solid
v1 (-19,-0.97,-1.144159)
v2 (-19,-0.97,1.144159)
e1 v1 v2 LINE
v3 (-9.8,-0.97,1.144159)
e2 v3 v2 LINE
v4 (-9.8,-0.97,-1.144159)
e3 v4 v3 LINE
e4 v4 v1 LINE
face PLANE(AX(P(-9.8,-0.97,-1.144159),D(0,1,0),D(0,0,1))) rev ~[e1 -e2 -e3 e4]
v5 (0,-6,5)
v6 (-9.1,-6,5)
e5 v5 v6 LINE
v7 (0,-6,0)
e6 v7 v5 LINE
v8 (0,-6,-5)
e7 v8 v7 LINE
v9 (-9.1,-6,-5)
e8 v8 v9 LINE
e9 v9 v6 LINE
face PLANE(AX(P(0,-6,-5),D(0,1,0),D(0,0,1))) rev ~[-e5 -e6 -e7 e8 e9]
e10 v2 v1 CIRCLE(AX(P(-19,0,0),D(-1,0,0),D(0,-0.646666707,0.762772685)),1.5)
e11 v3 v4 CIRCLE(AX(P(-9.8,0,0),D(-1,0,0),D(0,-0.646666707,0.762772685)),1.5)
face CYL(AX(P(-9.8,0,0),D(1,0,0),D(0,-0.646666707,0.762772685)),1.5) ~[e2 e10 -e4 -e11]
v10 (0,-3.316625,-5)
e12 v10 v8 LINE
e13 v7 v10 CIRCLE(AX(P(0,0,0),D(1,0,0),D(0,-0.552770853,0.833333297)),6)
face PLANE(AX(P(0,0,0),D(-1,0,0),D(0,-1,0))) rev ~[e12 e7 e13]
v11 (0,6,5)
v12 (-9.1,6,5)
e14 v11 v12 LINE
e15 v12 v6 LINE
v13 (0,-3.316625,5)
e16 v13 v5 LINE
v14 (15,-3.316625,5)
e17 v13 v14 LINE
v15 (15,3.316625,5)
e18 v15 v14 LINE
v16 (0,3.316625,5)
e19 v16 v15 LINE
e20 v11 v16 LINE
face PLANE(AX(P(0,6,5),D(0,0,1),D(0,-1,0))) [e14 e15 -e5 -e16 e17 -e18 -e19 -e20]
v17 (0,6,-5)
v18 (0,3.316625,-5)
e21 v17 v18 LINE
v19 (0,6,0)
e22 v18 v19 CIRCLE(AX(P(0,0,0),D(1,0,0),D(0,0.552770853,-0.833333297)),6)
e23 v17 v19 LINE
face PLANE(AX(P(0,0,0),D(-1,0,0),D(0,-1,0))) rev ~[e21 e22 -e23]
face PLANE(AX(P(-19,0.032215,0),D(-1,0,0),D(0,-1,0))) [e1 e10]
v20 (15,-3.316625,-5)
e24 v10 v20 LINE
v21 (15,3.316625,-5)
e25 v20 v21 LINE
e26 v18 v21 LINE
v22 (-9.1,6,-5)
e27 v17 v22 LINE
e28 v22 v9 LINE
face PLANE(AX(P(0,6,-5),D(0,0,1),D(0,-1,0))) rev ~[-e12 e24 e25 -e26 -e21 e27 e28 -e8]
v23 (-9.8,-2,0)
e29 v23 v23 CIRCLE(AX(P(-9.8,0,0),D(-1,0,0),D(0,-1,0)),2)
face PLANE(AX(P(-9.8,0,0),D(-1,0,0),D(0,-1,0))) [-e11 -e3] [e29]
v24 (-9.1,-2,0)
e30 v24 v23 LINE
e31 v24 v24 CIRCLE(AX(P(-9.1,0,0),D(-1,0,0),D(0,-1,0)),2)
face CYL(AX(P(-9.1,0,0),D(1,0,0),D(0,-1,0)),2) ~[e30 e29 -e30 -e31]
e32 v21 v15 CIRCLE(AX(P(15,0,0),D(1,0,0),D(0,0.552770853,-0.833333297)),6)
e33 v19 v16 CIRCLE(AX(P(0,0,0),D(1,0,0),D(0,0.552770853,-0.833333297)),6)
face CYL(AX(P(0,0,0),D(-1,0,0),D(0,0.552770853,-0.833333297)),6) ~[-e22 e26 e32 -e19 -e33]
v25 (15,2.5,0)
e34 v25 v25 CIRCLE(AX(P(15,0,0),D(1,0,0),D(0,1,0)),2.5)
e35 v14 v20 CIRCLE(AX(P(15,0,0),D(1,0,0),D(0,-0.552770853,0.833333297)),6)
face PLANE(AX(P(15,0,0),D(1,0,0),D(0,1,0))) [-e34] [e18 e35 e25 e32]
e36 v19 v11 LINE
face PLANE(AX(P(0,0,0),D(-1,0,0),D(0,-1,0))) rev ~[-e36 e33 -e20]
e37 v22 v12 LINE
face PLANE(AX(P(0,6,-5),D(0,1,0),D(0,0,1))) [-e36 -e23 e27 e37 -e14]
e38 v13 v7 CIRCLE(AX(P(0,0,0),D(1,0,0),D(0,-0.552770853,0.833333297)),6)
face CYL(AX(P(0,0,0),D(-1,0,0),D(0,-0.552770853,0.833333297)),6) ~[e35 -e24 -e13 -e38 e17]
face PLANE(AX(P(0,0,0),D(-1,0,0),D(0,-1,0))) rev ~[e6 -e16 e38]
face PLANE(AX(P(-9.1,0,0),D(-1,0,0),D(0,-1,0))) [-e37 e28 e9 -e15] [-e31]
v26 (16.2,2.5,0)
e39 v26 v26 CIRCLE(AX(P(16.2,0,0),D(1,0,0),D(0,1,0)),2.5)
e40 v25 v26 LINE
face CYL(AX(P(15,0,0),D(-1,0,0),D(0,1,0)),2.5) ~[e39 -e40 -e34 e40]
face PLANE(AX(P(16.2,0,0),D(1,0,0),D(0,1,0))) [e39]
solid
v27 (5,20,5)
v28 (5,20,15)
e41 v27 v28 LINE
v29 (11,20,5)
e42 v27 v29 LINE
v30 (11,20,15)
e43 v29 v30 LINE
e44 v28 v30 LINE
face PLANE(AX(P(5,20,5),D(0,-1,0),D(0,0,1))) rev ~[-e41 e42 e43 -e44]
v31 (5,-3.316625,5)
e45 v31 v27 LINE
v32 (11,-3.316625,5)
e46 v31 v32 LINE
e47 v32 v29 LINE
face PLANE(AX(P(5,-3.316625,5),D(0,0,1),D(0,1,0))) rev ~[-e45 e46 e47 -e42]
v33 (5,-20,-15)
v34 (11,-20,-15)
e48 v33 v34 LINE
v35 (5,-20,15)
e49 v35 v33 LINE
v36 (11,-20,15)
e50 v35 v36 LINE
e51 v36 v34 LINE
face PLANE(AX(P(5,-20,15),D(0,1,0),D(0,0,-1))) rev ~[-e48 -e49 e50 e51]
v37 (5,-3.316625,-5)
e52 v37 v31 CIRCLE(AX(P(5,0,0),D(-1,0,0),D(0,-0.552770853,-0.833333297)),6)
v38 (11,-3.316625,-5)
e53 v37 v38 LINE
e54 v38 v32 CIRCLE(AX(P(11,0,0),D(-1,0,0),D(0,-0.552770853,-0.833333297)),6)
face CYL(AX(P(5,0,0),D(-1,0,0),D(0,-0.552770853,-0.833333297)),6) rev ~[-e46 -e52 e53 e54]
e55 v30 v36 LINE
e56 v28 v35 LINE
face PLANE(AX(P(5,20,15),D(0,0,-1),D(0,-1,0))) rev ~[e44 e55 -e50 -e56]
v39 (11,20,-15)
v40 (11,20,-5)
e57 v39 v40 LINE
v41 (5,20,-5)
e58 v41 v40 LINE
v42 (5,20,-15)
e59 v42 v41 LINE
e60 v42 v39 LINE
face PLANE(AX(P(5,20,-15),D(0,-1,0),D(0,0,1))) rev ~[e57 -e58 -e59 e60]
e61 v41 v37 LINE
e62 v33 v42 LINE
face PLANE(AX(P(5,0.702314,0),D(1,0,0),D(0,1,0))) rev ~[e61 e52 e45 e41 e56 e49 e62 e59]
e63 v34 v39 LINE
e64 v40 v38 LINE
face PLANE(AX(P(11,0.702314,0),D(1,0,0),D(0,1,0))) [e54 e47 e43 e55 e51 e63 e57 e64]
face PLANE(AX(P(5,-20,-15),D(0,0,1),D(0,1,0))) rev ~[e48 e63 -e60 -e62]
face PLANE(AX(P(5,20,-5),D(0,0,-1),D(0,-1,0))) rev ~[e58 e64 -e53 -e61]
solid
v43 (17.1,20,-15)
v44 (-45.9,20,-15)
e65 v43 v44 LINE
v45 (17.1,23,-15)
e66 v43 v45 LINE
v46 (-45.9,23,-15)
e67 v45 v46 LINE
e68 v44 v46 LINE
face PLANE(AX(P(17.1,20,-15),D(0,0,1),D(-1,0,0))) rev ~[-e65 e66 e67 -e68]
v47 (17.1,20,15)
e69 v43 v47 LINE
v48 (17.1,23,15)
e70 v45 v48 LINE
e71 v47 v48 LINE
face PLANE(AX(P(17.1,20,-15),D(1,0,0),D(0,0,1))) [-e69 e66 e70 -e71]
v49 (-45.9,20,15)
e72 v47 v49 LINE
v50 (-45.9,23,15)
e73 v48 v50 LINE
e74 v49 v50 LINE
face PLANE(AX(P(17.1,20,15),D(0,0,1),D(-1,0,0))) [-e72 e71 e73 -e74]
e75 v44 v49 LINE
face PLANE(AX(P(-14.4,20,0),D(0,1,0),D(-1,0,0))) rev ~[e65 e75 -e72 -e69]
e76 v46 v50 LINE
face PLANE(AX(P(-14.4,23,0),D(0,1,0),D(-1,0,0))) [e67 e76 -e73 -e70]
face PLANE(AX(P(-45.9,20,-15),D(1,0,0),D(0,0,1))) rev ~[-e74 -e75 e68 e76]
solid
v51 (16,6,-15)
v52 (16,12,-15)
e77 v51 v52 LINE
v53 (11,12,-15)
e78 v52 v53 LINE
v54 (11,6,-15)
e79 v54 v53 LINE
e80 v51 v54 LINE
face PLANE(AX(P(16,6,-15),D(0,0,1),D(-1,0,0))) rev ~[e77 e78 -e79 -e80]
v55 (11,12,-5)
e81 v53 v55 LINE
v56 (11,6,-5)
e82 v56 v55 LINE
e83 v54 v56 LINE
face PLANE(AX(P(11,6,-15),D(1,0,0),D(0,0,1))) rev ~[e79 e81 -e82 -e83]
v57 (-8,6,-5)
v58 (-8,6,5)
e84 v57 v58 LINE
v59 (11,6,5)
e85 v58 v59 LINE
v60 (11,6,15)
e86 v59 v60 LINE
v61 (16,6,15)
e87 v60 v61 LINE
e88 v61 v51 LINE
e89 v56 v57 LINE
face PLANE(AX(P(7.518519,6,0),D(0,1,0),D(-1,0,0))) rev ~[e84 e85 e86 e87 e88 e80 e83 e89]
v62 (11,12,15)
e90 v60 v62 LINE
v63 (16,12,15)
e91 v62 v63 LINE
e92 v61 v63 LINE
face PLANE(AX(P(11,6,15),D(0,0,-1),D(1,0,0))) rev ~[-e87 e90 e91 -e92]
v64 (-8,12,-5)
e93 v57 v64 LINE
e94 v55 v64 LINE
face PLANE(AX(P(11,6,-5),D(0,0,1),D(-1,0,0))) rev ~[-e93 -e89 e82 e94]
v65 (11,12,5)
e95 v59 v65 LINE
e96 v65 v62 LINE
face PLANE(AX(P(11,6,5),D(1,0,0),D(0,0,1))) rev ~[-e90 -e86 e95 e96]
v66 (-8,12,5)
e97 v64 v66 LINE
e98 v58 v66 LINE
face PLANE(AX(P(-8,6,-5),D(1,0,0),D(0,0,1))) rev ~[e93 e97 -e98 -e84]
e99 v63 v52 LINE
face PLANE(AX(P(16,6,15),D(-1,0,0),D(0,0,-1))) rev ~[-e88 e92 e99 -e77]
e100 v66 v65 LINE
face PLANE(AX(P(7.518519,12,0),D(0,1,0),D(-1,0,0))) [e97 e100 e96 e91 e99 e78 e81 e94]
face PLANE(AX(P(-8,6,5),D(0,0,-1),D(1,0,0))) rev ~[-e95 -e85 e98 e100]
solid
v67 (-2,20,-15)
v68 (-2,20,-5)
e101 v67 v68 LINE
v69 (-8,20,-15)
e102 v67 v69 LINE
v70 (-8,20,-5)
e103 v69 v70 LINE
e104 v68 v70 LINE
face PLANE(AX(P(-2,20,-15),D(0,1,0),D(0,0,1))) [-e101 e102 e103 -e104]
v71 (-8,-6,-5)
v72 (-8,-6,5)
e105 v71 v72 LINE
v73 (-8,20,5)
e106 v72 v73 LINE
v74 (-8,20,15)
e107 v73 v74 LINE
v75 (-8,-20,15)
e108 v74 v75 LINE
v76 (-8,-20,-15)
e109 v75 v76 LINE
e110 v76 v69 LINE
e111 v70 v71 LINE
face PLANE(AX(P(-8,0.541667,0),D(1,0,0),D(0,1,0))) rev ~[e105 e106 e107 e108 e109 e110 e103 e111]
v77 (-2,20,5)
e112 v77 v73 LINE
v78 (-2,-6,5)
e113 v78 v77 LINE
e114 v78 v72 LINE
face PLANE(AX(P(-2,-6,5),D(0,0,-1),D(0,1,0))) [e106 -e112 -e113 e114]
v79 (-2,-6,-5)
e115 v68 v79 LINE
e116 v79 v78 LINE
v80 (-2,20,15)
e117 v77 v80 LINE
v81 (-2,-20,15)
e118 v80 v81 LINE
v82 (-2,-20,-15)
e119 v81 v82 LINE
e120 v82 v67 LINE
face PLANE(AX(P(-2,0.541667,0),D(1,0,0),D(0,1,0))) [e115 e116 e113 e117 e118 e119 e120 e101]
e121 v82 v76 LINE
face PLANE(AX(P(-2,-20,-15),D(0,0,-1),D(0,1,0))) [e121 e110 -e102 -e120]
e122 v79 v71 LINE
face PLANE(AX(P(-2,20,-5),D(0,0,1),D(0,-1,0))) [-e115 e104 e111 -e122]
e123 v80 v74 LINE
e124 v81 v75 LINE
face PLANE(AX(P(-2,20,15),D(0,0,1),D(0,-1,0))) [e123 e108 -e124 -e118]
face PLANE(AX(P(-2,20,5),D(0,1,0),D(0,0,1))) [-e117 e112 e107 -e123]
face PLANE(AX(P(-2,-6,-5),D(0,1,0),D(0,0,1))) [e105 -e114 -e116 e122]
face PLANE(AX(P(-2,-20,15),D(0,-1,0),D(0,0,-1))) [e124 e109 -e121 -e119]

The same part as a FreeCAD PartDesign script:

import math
import FreeCAD as App
import Part
import Sketcher

V = App.Vector
Q = App.Units.Quantity


def add_polygon(sketch, points):
    """Adds a closed chain of lines whose ends are joined by coincident constraints."""
    first, n = sketch.GeometryCount, len(points)
    for a, b in zip(points, points[1:] + points[:1]):
        sketch.addGeometry(Part.LineSegment(App.Vector(*a, 0), App.Vector(*b, 0)), False)
    for i in range(n):
        sketch.addConstraint(Sketcher.Constraint("Coincident", first + i, 2, first + (i + 1) % n, 1))

doc = App.newDocument("Part")
params = doc.addObject("Spreadsheet::Sheet", "Params")
for row, (alias, value) in enumerate([
    ("sketch1_radius", "6 mm"),
    ("pad1_length", "15 mm"),
    ("sketch2_diameter", "5 mm"),
    ("pad2_length", "1.2 mm"),
    ("sketch3_width", "12 mm"),
    ("sketch3_height", "10 mm"),
    ("pad3_length", "9.1 mm"),
    ("sketch4_diameter", "4 mm"),
    ("pad4_length", "0.7 mm"),
    ("sketch5_radius", "1.5 mm"),
    ("pad5_length", "9.2 mm"),
    ("sketch6_radius", "6 mm"),
    ("sketch6_width", "40 mm"),
    ("sketch6_height", "10 mm"),
    ("sketch6_height2", "30 mm"),
    ("pad6_length", "6 mm"),
    ("sketch7_width", "63 mm"),
    ("sketch7_height", "30 mm"),
    ("pad7_length", "3 mm"),
    ("sketch8_width", "26 mm"),
    ("sketch8_width2", "40 mm"),
    ("sketch8_height", "10 mm"),
    ("pad8_length", "6 mm"),
    ("sketch9_width", "19 mm"),
    ("sketch9_width2", "5 mm"),
    ("sketch9_height", "10 mm"),
    ("pad9_length", "6 mm"),
], start=1):
    params.set(f"A{row}", alias)
    params.set(f"B{row}", "=" + value)
    params.setAlias(f"B{row}", alias)

body = doc.addObject("PartDesign::Body", "Body")

# Sketch on YZ plane
sketch1 = body.newObject("Sketcher::SketchObject", "Sketch")
sketch1.AttachmentSupport = (doc.getObject("YZ_Plane"), [""])
sketch1.MapMode = "FlatFace"
sketch1.addGeometry(Part.LineSegment(V(-3, -5, 0), V(3, -5, 0)), False)
sketch1.addGeometry(Part.ArcOfCircle(Part.Circle(V(0, 0, 0), V(0, 0, 1), 6), math.radians(-56), math.radians(56)), False)
sketch1.addGeometry(Part.LineSegment(V(3, 5, 0), V(-3, 5, 0)), False)
sketch1.addGeometry(Part.ArcOfCircle(Part.Circle(V(0, 0, 0), V(0, 0, 1), 6), math.radians(124), math.radians(236)), False)
sketch1.addConstraint(Sketcher.Constraint("Coincident", 0, 2, 1, 1))
sketch1.addConstraint(Sketcher.Constraint("Coincident", 1, 2, 2, 1))
sketch1.addConstraint(Sketcher.Constraint("Coincident", 2, 2, 3, 1))
sketch1.addConstraint(Sketcher.Constraint("Coincident", 3, 2, 0, 1))
sketch1.addConstraint(Sketcher.Constraint("Horizontal", 0))
sketch1.addConstraint(Sketcher.Constraint("Horizontal", 2))
sketch1.addConstraint(Sketcher.Constraint("Coincident", 1, 3, -1, 1))
sketch1.addConstraint(Sketcher.Constraint("Coincident", 3, 3, -1, 1))
sketch1.addConstraint(Sketcher.Constraint("Equal", 1, 3))
sketch1.addConstraint(Sketcher.Constraint("Vertical", 0, 2, 1, 2))
sketch1.addConstraint(Sketcher.Constraint("Radius", 1, Q("6 mm")))
sketch1.addConstraint(Sketcher.Constraint("DistanceY", 0, 2, -1, 1, Q("5 mm")))
sketch1.setExpression("Constraints[10]", "Params.sketch1_radius")
pad1 = body.newObject("PartDesign::Pad", "Pad")
pad1.Profile = sketch1
pad1.setExpression("Length", "Params.pad1_length")

# Sketch on YZ plane
sketch2 = body.newObject("Sketcher::SketchObject", "Sketch001")
sketch2.AttachmentSupport = (doc.getObject("YZ_Plane"), [""])
sketch2.MapMode = "FlatFace"
sketch2.AttachmentOffset = App.Placement(V(0, 0, 15), App.Rotation())
sketch2.addGeometry(Part.Circle(V(0, 0, 0), V(0, 0, 1), 2.5), False)
sketch2.addConstraint(Sketcher.Constraint("Coincident", 0, 3, -1, 1))
sketch2.addConstraint(Sketcher.Constraint("Diameter", 0, Q("5 mm")))
sketch2.setExpression("Constraints[1]", "Params.sketch2_diameter")
pad2 = body.newObject("PartDesign::Pad", "Pad001")
pad2.Profile = sketch2
pad2.setExpression("Length", "Params.pad2_length")

# Sketch on YZ plane
sketch3 = body.newObject("Sketcher::SketchObject", "Sketch002")
sketch3.AttachmentSupport = (doc.getObject("YZ_Plane"), [""])
sketch3.MapMode = "FlatFace"
add_polygon(sketch3, [(6, 5), (6, -5), (-6, -5), (-6, 5)])  # lines 0-3
sketch3.addConstraint(Sketcher.Constraint("Vertical", 0))
sketch3.addConstraint(Sketcher.Constraint("Horizontal", 1))
sketch3.addConstraint(Sketcher.Constraint("Vertical", 2))
sketch3.addConstraint(Sketcher.Constraint("Horizontal", 3))
sketch3.addConstraint(Sketcher.Constraint("Symmetric", 0, 2, 2, 2, -1, 1))
sketch3.addConstraint(Sketcher.Constraint("DistanceX", 1, 2, 1, 1, Q("12 mm")))
sketch3.addConstraint(Sketcher.Constraint("DistanceY", 0, 2, 0, 1, Q("10 mm")))
sketch3.setExpression("Constraints[9]", "Params.sketch3_width")
sketch3.setExpression("Constraints[10]", "Params.sketch3_height")
pad3 = body.newObject("PartDesign::Pad", "Pad002")
pad3.Profile = sketch3
pad3.setExpression("Length", "Params.pad3_length")
pad3.Reversed = True

# Sketch on YZ plane
sketch4 = body.newObject("Sketcher::SketchObject", "Sketch003")
sketch4.AttachmentSupport = (doc.getObject("YZ_Plane"), [""])
sketch4.MapMode = "FlatFace"
sketch4.AttachmentOffset = App.Placement(V(0, 0, -9.1), App.Rotation())
sketch4.addGeometry(Part.Circle(V(0, 0, 0), V(0, 0, 1), 2), False)
sketch4.addConstraint(Sketcher.Constraint("Coincident", 0, 3, -1, 1))
sketch4.addConstraint(Sketcher.Constraint("Diameter", 0, Q("4 mm")))
sketch4.setExpression("Constraints[1]", "Params.sketch4_diameter")
pad4 = body.newObject("PartDesign::Pad", "Pad003")
pad4.Profile = sketch4
pad4.setExpression("Length", "Params.pad4_length")
pad4.Reversed = True

# Sketch on YZ plane
sketch5 = body.newObject("Sketcher::SketchObject", "Sketch004")
sketch5.AttachmentSupport = (doc.getObject("YZ_Plane"), [""])
sketch5.MapMode = "FlatFace"
sketch5.AttachmentOffset = App.Placement(V(0, 0, -9.8), App.Rotation())
sketch5.addGeometry(Part.LineSegment(V(-1, -1.1, 0), V(-1, 1.1, 0)), False)
sketch5.addGeometry(Part.ArcOfCircle(Part.Circle(V(0, 0, 0), V(0, 0, 1), 1.5), math.radians(-130), math.radians(130)), False)
sketch5.addConstraint(Sketcher.Constraint("Coincident", 0, 1, 1, 1))
sketch5.addConstraint(Sketcher.Constraint("Coincident", 1, 2, 0, 2))
sketch5.addConstraint(Sketcher.Constraint("Vertical", 0))
sketch5.addConstraint(Sketcher.Constraint("Coincident", 1, 3, -1, 1))
sketch5.addConstraint(Sketcher.Constraint("Radius", 1, Q("1.5 mm")))
sketch5.addConstraint(Sketcher.Constraint("DistanceX", 0, 1, -1, 1, Q("0.97 mm")))
sketch5.setExpression("Constraints[4]", "Params.sketch5_radius")
pad5 = body.newObject("PartDesign::Pad", "Pad004")
pad5.Profile = sketch5
pad5.setExpression("Length", "Params.pad5_length")
pad5.Reversed = True
body2 = doc.addObject("PartDesign::Body", "Body001")

# Sketch on YZ plane
sketch6 = body2.newObject("Sketcher::SketchObject", "Sketch005")
sketch6.AttachmentSupport = (doc.getObject("YZ_Plane001"), [""])
sketch6.MapMode = "FlatFace"
sketch6.AttachmentOffset = App.Placement(V(0, 0, 5), App.Rotation())
sketch6.addGeometry(Part.LineSegment(V(-3, 5, 0), V(20, 5, 0)), False)
sketch6.addGeometry(Part.LineSegment(V(20, 5, 0), V(20, 15, 0)), False)
sketch6.addGeometry(Part.LineSegment(V(20, 15, 0), V(-20, 15, 0)), False)
sketch6.addGeometry(Part.LineSegment(V(-20, 15, 0), V(-20, -15, 0)), False)
sketch6.addGeometry(Part.LineSegment(V(-20, -15, 0), V(20, -15, 0)), False)
sketch6.addGeometry(Part.LineSegment(V(20, -15, 0), V(20, -5, 0)), False)
sketch6.addGeometry(Part.LineSegment(V(20, -5, 0), V(-3, -5, 0)), False)
sketch6.addGeometry(Part.ArcOfCircle(Part.Circle(V(0, 0, 0), V(0, 0, 1), 6), math.radians(124), math.radians(236)), False)
sketch6.addConstraint(Sketcher.Constraint("Coincident", 0, 2, 1, 1))
sketch6.addConstraint(Sketcher.Constraint("Coincident", 1, 2, 2, 1))
sketch6.addConstraint(Sketcher.Constraint("Coincident", 2, 2, 3, 1))
sketch6.addConstraint(Sketcher.Constraint("Coincident", 3, 2, 4, 1))
sketch6.addConstraint(Sketcher.Constraint("Coincident", 4, 2, 5, 1))
sketch6.addConstraint(Sketcher.Constraint("Coincident", 5, 2, 6, 1))
sketch6.addConstraint(Sketcher.Constraint("Coincident", 6, 2, 7, 2))
sketch6.addConstraint(Sketcher.Constraint("Coincident", 7, 1, 0, 1))
sketch6.addConstraint(Sketcher.Constraint("Horizontal", 0))
sketch6.addConstraint(Sketcher.Constraint("Vertical", 1))
sketch6.addConstraint(Sketcher.Constraint("Horizontal", 2))
sketch6.addConstraint(Sketcher.Constraint("Vertical", 3))
sketch6.addConstraint(Sketcher.Constraint("Horizontal", 4))
sketch6.addConstraint(Sketcher.Constraint("Vertical", 5))
sketch6.addConstraint(Sketcher.Constraint("Horizontal", 6))
sketch6.addConstraint(Sketcher.Constraint("Coincident", 7, 3, -1, 1))
sketch6.addConstraint(Sketcher.Constraint("Symmetric", 1, 2, 3, 2, -1, 1))
sketch6.addConstraint(Sketcher.Constraint("Symmetric", 0, 2, 5, 2, -1))
sketch6.addConstraint(Sketcher.Constraint("Radius", 7, Q("6 mm")))
sketch6.addConstraint(Sketcher.Constraint("DistanceX", 2, 2, 2, 1, Q("40 mm")))
sketch6.addConstraint(Sketcher.Constraint("DistanceY", 1, 1, 1, 2, Q("10 mm")))
sketch6.addConstraint(Sketcher.Constraint("DistanceY", 3, 2, 3, 1, Q("30 mm")))
sketch6.setExpression("Constraints[18]", "Params.sketch6_radius")
sketch6.setExpression("Constraints[19]", "Params.sketch6_width")
sketch6.setExpression("Constraints[20]", "Params.sketch6_height")
sketch6.setExpression("Constraints[21]", "Params.sketch6_height2")
pad6 = body2.newObject("PartDesign::Pad", "Pad005")
pad6.Profile = sketch6
pad6.setExpression("Length", "Params.pad6_length")
body3 = doc.addObject("PartDesign::Body", "Body002")

# Sketch on XZ plane
sketch7 = body3.newObject("Sketcher::SketchObject", "Sketch006")
sketch7.AttachmentSupport = (doc.getObject("XZ_Plane002"), [""])
sketch7.MapMode = "FlatFace"
sketch7.AttachmentOffset = App.Placement(V(0, 0, -20), App.Rotation())
add_polygon(sketch7, [(17, 15), (17, -15), (-46, -15), (-46, 15)])  # lines 0-3
sketch7.addConstraint(Sketcher.Constraint("Vertical", 0))
sketch7.addConstraint(Sketcher.Constraint("Horizontal", 1))
sketch7.addConstraint(Sketcher.Constraint("Vertical", 2))
sketch7.addConstraint(Sketcher.Constraint("Horizontal", 3))
sketch7.addConstraint(Sketcher.Constraint("DistanceX", 1, 2, 1, 1, Q("63 mm")))
sketch7.addConstraint(Sketcher.Constraint("DistanceY", 0, 2, 0, 1, Q("30 mm")))
sketch7.addConstraint(Sketcher.Constraint("DistanceY", 0, 2, -1, 1, Q("15 mm")))
sketch7.addConstraint(Sketcher.Constraint("DistanceX", -1, 1, 0, 2, Q("17.1 mm")))
sketch7.setExpression("Constraints[8]", "Params.sketch7_width")
sketch7.setExpression("Constraints[9]", "Params.sketch7_height")
pad7 = body3.newObject("PartDesign::Pad", "Pad006")
pad7.Profile = sketch7
pad7.setExpression("Length", "Params.pad7_length")
pad7.Reversed = True
body4 = doc.addObject("PartDesign::Body", "Body003")

# Sketch on YZ plane
sketch8 = body4.newObject("Sketcher::SketchObject", "Sketch007")
sketch8.AttachmentSupport = (doc.getObject("YZ_Plane003"), [""])
sketch8.MapMode = "FlatFace"
sketch8.AttachmentOffset = App.Placement(V(0, 0, -2), App.Rotation())
add_polygon(sketch8, [(20, -5), (-6, -5), (-6, 5), (20, 5), (20, 15), (-20, 15), (-20, -15), (20, -15)])  # lines 0-7
sketch8.addConstraint(Sketcher.Constraint("Horizontal", 0))
sketch8.addConstraint(Sketcher.Constraint("Vertical", 1))
sketch8.addConstraint(Sketcher.Constraint("Horizontal", 2))
sketch8.addConstraint(Sketcher.Constraint("Vertical", 3))
sketch8.addConstraint(Sketcher.Constraint("Horizontal", 4))
sketch8.addConstraint(Sketcher.Constraint("Vertical", 5))
sketch8.addConstraint(Sketcher.Constraint("Horizontal", 6))
sketch8.addConstraint(Sketcher.Constraint("Vertical", 7))
sketch8.addConstraint(Sketcher.Constraint("Symmetric", 3, 2, 5, 2, -1, 1))
sketch8.addConstraint(Sketcher.Constraint("Symmetric", 2, 2, 7, 2, -1))
sketch8.addConstraint(Sketcher.Constraint("Equal", 1, 3))
sketch8.addConstraint(Sketcher.Constraint("DistanceX", 0, 2, 0, 1, Q("26 mm")))
sketch8.addConstraint(Sketcher.Constraint("DistanceX", 4, 2, 4, 1, Q("40 mm")))
sketch8.addConstraint(Sketcher.Constraint("DistanceY", 1, 1, 1, 2, Q("10 mm")))
sketch8.setExpression("Constraints[19]", "Params.sketch8_width")
sketch8.setExpression("Constraints[20]", "Params.sketch8_width2")
sketch8.setExpression("Constraints[21]", "Params.sketch8_height")
pad8 = body4.newObject("PartDesign::Pad", "Pad007")
pad8.Profile = sketch8
pad8.setExpression("Length", "Params.pad8_length")
pad8.Reversed = True
body5 = doc.addObject("PartDesign::Body", "Body004")

# Sketch on XZ plane
sketch9 = body5.newObject("Sketcher::SketchObject", "Sketch008")
sketch9.AttachmentSupport = (doc.getObject("XZ_Plane004"), [""])
sketch9.MapMode = "FlatFace"
sketch9.AttachmentOffset = App.Placement(V(0, 0, -6), App.Rotation())
add_polygon(sketch9, [(-8, -5), (-8, 5), (11, 5), (11, 15), (16, 15), (16, -15), (11, -15), (11, -5)])  # lines 0-7
sketch9.addConstraint(Sketcher.Constraint("Vertical", 0))
sketch9.addConstraint(Sketcher.Constraint("Horizontal", 1))
sketch9.addConstraint(Sketcher.Constraint("Vertical", 2))
sketch9.addConstraint(Sketcher.Constraint("Horizontal", 3))
sketch9.addConstraint(Sketcher.Constraint("Vertical", 4))
sketch9.addConstraint(Sketcher.Constraint("Horizontal", 5))
sketch9.addConstraint(Sketcher.Constraint("Vertical", 6))
sketch9.addConstraint(Sketcher.Constraint("Horizontal", 7))
sketch9.addConstraint(Sketcher.Constraint("Symmetric", 2, 2, 5, 2, -1))
sketch9.addConstraint(Sketcher.Constraint("Equal", 0, 2))
sketch9.addConstraint(Sketcher.Constraint("Equal", 2, 6))
sketch9.addConstraint(Sketcher.Constraint("DistanceX", 1, 1, 1, 2, Q("19 mm")))
sketch9.addConstraint(Sketcher.Constraint("DistanceX", 3, 1, 3, 2, Q("5 mm")))
sketch9.addConstraint(Sketcher.Constraint("DistanceY", 0, 1, 0, 2, Q("10 mm")))
sketch9.addConstraint(Sketcher.Constraint("DistanceX", 0, 2, -1, 1, Q("8 mm")))
sketch9.setExpression("Constraints[19]", "Params.sketch9_width")
sketch9.setExpression("Constraints[20]", "Params.sketch9_width2")
sketch9.setExpression("Constraints[21]", "Params.sketch9_height")
pad9 = body5.newObject("PartDesign::Pad", "Pad008")
pad9.Profile = sketch9
pad9.setExpression("Length", "Params.pad9_length")
pad9.Reversed = True

doc.recompute()
